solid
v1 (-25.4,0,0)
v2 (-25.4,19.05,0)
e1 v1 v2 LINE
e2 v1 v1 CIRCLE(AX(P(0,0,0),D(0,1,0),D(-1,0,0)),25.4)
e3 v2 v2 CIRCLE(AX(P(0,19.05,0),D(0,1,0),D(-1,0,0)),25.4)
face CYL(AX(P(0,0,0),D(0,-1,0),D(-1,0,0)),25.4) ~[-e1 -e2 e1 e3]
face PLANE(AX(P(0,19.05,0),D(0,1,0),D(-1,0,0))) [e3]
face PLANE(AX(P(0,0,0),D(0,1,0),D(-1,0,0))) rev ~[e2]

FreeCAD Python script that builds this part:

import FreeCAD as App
import Part
import Sketcher
from FreeCAD import Vector
Q = App.Units.Quantity

doc = App.newDocument("Part")
params = doc.addObject("Spreadsheet::Sheet", "Params")
for row, (alias, value) in enumerate([
    ("sketch1_diameter", "2 in"),
    ("pad1_length", "0.75 in"),
], start=1):
    params.set(f"A{row}", alias)
    params.set(f"B{row}", "=" + value)
    params.setAlias(f"B{row}", alias)

body = doc.addObject("PartDesign::Body", "Body")

sketch1 = body.newObject("Sketcher::SketchObject", "Sketch")
sketch1.AttachmentSupport = (doc.getObject("XZ_Plane"), [""])
sketch1.MapMode = "FlatFace"
sketch1.addGeometry(Part.Circle(Vector(0, 0, 0), Vector(0, 0, 1), 25), False)
sketch1.addConstraint([
    Sketcher.Constraint("Coincident", 0, 3, -1, 1),
    Sketcher.Constraint("Diameter", 0, Q("2 in")),
])
sketch1.setExpression("Constraints[1]", "Params.sketch1_diameter")
pad1 = body.newObject("PartDesign::Pad", "Pad")
pad1.Profile = sketch1
pad1.setExpression("Length", "Params.pad1_length")
pad1.Reversed = True

doc.recompute()
